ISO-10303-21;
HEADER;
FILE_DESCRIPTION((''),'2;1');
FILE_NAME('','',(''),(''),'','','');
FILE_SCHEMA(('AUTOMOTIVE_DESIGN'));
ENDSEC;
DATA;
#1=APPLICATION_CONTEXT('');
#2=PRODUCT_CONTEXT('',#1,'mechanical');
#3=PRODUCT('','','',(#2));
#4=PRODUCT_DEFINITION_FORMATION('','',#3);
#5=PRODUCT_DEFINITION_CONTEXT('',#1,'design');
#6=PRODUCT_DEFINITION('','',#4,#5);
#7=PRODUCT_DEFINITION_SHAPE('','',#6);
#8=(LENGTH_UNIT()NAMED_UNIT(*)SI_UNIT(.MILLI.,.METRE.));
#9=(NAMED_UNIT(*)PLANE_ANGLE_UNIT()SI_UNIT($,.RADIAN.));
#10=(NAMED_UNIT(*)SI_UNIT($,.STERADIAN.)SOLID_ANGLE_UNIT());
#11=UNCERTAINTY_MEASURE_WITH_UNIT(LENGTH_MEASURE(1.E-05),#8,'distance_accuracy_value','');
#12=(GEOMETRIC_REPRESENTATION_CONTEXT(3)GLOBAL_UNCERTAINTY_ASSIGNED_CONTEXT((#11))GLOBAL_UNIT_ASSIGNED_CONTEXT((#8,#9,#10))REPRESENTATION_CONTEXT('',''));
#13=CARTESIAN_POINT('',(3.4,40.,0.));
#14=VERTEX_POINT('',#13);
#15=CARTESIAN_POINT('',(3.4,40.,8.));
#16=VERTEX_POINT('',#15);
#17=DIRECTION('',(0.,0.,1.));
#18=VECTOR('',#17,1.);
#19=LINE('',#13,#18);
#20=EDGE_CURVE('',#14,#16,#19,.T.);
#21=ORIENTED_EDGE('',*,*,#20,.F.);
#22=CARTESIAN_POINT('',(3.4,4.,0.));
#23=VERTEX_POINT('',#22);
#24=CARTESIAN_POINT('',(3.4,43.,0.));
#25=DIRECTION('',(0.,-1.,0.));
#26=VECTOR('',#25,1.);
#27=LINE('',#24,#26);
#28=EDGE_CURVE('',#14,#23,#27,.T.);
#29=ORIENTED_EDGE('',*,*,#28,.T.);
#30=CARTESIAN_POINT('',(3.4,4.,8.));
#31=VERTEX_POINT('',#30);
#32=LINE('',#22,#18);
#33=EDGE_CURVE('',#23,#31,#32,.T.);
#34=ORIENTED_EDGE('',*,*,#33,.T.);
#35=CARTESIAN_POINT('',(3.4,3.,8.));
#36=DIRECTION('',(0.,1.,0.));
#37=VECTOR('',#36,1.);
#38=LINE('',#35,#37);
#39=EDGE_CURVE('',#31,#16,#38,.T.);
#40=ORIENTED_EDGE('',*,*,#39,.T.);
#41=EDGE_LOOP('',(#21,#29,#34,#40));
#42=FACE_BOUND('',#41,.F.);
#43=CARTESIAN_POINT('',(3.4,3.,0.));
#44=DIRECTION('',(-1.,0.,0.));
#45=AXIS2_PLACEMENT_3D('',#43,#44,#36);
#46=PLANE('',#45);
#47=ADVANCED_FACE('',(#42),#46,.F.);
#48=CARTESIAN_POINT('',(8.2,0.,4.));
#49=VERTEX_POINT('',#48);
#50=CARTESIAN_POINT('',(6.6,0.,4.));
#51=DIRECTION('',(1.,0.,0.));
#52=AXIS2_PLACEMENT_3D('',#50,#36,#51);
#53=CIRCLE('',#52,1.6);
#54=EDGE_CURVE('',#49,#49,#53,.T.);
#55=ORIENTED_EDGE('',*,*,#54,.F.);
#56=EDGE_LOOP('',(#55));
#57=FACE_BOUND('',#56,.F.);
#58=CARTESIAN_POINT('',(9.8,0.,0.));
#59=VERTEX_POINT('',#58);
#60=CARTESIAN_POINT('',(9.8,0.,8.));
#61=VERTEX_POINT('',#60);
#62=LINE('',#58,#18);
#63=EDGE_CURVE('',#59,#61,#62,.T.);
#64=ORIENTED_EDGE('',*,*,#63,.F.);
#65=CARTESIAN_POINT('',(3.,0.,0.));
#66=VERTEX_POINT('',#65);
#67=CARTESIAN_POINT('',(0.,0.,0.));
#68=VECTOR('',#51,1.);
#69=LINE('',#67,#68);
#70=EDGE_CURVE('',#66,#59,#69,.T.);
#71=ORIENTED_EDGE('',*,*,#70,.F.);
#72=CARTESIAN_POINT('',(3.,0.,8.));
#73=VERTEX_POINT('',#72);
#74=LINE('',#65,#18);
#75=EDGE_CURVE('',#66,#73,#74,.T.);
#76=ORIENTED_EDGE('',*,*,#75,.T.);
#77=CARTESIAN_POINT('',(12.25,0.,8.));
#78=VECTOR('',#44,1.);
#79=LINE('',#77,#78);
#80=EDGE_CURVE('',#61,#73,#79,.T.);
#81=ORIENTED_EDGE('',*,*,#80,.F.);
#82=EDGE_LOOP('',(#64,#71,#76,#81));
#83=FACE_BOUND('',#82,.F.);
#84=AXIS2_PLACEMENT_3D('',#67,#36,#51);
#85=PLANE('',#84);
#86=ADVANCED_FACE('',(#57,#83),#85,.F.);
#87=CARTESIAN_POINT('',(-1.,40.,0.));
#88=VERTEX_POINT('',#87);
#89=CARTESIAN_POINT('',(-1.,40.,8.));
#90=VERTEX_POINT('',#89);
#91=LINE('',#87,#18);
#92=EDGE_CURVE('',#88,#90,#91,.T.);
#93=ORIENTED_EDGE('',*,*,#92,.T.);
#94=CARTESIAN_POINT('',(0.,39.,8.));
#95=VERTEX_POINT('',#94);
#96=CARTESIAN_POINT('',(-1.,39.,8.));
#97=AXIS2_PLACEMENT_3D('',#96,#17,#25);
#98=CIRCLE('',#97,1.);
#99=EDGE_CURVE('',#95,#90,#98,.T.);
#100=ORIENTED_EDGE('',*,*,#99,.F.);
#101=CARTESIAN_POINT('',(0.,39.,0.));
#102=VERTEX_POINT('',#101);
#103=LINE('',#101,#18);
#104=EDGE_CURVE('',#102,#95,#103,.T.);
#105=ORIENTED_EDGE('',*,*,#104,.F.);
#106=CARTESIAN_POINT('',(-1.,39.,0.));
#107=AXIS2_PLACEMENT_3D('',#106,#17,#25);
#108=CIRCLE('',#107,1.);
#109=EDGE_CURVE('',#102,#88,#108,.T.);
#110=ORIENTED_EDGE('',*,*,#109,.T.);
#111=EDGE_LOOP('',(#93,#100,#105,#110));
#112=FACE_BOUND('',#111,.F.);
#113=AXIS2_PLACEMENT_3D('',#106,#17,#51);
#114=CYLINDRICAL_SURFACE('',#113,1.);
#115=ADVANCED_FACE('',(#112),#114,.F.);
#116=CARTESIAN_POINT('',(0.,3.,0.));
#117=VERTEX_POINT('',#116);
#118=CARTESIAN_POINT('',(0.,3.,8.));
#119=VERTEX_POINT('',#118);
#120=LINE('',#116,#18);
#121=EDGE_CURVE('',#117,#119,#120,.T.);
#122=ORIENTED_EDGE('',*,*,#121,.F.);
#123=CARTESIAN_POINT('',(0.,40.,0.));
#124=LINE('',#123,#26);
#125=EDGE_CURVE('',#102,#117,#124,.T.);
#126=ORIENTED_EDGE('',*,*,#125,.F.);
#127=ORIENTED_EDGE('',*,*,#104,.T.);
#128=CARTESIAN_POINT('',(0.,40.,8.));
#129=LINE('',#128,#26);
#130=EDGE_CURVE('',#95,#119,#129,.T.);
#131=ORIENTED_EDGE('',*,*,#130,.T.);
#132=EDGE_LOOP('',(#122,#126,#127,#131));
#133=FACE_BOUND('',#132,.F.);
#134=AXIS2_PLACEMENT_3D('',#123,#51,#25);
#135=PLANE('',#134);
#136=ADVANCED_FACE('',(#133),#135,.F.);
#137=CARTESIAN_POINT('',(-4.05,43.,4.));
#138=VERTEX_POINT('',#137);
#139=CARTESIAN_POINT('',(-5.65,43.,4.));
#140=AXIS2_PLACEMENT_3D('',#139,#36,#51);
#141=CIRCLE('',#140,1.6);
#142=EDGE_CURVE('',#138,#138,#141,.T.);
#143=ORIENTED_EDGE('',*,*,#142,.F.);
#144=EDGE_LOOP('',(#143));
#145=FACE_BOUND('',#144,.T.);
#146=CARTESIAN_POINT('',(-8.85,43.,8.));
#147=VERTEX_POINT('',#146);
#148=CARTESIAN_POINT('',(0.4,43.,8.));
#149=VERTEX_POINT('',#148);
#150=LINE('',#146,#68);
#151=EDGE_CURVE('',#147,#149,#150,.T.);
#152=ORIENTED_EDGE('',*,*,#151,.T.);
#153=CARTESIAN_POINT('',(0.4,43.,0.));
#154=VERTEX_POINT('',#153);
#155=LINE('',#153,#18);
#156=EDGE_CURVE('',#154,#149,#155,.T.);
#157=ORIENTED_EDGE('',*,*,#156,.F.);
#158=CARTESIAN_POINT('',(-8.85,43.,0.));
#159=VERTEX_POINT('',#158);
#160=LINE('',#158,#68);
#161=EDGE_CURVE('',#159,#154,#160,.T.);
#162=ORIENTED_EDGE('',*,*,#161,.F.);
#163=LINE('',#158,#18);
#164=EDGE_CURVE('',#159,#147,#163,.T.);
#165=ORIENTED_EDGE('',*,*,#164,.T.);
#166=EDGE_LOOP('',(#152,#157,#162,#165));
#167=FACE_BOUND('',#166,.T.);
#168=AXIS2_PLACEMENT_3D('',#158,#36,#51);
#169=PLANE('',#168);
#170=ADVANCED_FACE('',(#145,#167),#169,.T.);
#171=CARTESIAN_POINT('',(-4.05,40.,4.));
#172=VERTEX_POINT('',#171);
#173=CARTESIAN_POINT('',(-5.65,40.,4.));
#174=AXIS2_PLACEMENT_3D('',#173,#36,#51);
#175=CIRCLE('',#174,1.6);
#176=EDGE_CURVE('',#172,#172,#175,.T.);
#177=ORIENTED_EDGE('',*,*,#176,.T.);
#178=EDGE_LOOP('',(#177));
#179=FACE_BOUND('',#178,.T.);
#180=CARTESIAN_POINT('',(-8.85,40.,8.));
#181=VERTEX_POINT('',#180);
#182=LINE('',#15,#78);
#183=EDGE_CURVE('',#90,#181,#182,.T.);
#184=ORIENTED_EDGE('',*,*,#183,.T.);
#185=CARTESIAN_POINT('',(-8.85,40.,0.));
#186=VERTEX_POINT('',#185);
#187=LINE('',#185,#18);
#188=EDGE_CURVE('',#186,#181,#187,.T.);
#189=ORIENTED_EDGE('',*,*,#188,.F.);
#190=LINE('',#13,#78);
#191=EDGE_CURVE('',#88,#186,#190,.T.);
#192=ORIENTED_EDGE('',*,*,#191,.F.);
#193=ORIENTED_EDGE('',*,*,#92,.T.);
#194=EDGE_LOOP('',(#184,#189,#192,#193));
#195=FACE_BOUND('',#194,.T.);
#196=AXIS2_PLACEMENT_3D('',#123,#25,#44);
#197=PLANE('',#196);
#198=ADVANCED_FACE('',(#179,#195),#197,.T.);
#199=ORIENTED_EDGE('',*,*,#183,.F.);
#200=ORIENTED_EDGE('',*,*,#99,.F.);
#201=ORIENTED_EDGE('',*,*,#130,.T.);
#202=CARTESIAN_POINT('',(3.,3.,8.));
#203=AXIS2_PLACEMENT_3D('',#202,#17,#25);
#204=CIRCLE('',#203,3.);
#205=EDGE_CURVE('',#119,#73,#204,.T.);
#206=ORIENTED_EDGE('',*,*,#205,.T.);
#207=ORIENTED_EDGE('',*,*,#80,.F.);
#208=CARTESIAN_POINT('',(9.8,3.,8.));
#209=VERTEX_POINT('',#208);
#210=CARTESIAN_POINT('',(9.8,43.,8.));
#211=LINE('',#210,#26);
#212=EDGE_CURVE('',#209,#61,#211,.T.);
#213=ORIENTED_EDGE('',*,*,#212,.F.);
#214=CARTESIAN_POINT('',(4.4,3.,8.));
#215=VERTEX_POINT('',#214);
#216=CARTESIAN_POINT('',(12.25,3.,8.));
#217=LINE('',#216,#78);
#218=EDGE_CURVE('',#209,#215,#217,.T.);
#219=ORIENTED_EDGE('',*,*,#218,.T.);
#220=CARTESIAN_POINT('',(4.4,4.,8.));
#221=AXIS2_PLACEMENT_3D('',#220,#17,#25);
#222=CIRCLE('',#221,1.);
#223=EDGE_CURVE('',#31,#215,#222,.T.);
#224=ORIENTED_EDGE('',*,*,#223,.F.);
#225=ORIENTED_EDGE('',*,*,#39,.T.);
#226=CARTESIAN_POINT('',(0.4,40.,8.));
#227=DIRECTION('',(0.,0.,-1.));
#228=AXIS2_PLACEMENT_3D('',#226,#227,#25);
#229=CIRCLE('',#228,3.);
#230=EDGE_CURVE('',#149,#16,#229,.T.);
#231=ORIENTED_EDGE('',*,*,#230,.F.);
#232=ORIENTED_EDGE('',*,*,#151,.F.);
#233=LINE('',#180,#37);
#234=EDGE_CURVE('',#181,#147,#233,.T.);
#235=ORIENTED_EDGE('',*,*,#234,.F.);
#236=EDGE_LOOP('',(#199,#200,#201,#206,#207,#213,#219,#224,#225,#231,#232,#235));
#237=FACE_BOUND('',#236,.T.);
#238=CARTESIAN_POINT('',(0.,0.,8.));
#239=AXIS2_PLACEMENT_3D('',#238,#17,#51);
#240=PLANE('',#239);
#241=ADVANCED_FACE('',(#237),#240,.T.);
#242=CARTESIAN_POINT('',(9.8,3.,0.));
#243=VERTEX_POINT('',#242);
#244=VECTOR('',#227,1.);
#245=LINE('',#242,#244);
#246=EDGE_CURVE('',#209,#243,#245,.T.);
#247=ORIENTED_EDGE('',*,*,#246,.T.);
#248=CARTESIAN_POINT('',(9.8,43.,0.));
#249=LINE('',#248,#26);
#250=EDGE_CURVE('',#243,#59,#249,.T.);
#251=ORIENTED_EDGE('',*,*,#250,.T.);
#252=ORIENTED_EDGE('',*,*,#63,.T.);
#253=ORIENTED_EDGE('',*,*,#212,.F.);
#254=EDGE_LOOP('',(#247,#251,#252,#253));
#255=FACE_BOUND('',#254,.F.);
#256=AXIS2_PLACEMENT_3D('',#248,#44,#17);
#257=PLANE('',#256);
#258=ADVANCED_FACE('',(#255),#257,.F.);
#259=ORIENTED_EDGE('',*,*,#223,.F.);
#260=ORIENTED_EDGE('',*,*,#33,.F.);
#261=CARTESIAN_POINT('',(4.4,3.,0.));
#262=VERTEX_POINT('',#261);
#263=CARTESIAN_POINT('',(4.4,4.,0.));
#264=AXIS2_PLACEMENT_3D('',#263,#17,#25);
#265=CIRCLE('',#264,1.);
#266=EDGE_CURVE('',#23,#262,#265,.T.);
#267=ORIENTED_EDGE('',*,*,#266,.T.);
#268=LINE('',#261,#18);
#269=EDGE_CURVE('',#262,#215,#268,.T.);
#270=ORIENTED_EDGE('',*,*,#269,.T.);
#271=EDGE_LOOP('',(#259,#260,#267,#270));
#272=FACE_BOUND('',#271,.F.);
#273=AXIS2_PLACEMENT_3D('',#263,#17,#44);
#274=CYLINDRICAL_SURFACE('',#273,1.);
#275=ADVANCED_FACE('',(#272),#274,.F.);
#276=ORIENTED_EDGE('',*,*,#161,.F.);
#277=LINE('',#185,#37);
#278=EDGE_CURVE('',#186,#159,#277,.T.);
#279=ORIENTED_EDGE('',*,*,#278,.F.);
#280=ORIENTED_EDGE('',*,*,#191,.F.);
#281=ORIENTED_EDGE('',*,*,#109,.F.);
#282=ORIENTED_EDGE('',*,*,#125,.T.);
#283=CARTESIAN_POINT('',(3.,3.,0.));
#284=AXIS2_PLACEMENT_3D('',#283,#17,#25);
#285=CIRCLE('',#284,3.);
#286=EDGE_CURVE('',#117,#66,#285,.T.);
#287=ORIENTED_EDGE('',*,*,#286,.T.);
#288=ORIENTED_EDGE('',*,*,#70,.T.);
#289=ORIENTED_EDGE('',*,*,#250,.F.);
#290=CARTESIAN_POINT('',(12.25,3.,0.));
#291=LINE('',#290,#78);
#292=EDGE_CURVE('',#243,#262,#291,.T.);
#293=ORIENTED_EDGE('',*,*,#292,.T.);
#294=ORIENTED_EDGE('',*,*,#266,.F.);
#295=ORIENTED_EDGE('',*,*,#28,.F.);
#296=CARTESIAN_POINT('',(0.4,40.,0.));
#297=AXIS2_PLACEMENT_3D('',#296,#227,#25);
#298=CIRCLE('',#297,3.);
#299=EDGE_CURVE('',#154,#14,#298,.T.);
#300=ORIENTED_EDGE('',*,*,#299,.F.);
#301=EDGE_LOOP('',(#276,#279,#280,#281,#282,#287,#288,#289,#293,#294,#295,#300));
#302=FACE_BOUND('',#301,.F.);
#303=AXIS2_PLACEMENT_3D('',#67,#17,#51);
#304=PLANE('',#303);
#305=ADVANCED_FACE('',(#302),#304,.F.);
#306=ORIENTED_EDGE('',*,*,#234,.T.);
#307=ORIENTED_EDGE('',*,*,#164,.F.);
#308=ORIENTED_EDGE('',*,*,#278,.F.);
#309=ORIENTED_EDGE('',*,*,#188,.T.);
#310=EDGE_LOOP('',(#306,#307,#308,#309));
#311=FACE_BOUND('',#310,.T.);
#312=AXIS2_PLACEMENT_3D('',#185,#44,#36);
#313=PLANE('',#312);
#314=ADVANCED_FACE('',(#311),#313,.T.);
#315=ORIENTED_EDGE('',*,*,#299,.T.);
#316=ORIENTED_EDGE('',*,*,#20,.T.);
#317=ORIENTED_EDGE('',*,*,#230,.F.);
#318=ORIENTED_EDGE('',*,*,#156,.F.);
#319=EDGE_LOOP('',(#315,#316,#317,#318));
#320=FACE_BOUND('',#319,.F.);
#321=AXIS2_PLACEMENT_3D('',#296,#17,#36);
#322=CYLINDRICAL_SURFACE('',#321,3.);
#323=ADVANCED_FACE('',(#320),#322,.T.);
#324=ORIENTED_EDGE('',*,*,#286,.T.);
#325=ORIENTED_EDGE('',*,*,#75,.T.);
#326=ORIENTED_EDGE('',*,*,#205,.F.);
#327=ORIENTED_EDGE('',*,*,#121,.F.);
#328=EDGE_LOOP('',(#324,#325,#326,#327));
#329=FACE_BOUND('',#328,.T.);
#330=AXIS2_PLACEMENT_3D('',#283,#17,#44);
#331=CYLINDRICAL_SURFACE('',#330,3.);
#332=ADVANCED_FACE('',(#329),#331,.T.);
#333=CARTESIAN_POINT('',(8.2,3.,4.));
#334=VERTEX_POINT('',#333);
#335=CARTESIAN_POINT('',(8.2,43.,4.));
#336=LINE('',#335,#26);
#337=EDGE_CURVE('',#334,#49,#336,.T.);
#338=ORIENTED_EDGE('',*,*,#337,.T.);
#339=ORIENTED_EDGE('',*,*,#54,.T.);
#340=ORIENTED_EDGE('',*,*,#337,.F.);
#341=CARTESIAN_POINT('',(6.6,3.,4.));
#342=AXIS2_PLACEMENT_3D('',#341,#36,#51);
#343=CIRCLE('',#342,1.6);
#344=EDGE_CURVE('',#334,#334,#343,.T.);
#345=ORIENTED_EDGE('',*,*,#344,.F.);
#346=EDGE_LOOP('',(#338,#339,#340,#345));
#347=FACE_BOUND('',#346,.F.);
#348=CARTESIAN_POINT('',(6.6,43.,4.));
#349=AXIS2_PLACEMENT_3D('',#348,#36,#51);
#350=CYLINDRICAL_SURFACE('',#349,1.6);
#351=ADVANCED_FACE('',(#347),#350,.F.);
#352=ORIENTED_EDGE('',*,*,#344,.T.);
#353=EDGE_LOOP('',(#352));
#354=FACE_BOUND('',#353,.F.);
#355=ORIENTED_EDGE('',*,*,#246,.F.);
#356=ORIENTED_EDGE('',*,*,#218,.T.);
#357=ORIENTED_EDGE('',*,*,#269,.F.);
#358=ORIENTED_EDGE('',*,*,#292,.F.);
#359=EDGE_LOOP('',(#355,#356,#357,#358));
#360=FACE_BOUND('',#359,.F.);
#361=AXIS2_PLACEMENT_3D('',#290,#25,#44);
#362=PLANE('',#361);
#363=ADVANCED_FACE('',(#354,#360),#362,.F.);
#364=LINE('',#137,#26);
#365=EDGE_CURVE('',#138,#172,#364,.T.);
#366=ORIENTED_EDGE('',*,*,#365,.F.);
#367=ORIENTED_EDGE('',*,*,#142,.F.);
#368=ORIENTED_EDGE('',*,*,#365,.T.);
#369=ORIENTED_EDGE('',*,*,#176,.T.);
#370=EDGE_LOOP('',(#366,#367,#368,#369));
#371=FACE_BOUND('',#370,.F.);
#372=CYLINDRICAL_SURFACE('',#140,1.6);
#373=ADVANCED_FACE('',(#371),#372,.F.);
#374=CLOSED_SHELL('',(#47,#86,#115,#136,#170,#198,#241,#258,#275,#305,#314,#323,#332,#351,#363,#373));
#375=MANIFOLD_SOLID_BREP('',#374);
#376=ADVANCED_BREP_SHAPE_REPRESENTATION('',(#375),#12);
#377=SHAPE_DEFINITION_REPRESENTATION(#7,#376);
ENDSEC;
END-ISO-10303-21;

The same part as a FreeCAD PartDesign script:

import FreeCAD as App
import Part
import Sketcher

V = App.Vector


def edges_at(feature, points):
    """Names of the edges that pass closest to the given points."""
    edges = feature.Shape.Edges
    near = lambda p: min(range(len(edges)), key=lambda i: edges[i].distToShape(Part.Vertex(*p))[0])
    return sorted({f"Edge{near(p) + 1}" for p in points})


def add_polygon(sketch, points):
    """Adds a closed chain of lines whose ends are joined by coincident constraints."""
    first, n = sketch.GeometryCount, len(points)
    for a, b in zip(points, points[1:] + points[:1]):
        sketch.addGeometry(Part.LineSegment(App.Vector(*a, 0), App.Vector(*b, 0)), False)
    for i in range(n):
        sketch.addConstraint(Sketcher.Constraint("Coincident", first + i, 2, first + (i + 1) % n, 1))

doc = App.newDocument("Part")
body = doc.addObject("PartDesign::Body", "Body")

sketch1 = body.newObject("Sketcher::SketchObject", "Sketch")
sketch1.AttachmentSupport = (doc.getObject("XY_Plane"), [""])
sketch1.MapMode = "FlatFace"
add_polygon(sketch1, [(0, 40), (0, 0), (12.2, 0), (12.2, 3), (3.4, 3), (3.4, 43), (-8.8, 43), (-8.8, 40)])
sketch1.addConstraint([
    Sketcher.Constraint("Vertical", 0),
    Sketcher.Constraint("Horizontal", 1),
    Sketcher.Constraint("Vertical", 2),
    Sketcher.Constraint("Horizontal", 3),
    Sketcher.Constraint("Vertical", 4),
    Sketcher.Constraint("Horizontal", 5),
    Sketcher.Constraint("Vertical", 6),
    Sketcher.Constraint("Horizontal", 7),
    Sketcher.Constraint("Coincident", 0, 2, -1, 1),
    Sketcher.Constraint("Equal", 1, 5),
    Sketcher.Constraint("Equal", 0, 4),
    Sketcher.Constraint("DistanceY", 0, 2, 0, 1, 40.0),
    Sketcher.Constraint("DistanceY", 2, 1, 2, 2, 3.0),
    Sketcher.Constraint("DistanceX", 1, 1, 1, 2, 12.25),
    Sketcher.Constraint("DistanceX", -1, 1, 3, 2, 3.4),
])
pad1 = body.newObject("PartDesign::Pad", "Pad")
pad1.Profile = sketch1
pad1.Length = 8

sketch2 = body.newObject("Sketcher::SketchObject", "Sketch001")
sketch2.AttachmentSupport = (doc.getObject("XZ_Plane"), [""])
sketch2.MapMode = "FlatFace"
sketch2.AttachmentOffset = App.Placement(V(0, 0, -43), App.Rotation())
add_polygon(sketch2, [(12.2, 0), (9.8, 0), (9.8, 8), (12.2, 8)])
sketch2.addGeometry(Part.Circle(V(-5.7, 4, 0), V(0, 0, 1), 1.6), False)
sketch2.addGeometry(Part.Circle(V(6.6, 4, 0), V(0, 0, 1), 1.6), False)
sketch2.addConstraint([
    Sketcher.Constraint("Horizontal", 0),
    Sketcher.Constraint("Vertical", 1),
    Sketcher.Constraint("Horizontal", 2),
    Sketcher.Constraint("Vertical", 3),
    Sketcher.Constraint("Equal", 4, 5),
    Sketcher.Constraint("PointOnObject", 0, 2, -1),
    Sketcher.Constraint("Horizontal", 4, 3, 5, 3),
    Sketcher.Constraint("Diameter", 4, 3.2),
    Sketcher.Constraint("DistanceX", 5, 3, 0, 2, 3.2),
    Sketcher.Constraint("DistanceY", 1, 1, 1, 2, 8.0),
    Sketcher.Constraint("DistanceY", -1, 1, 4, 3, 4.0),
    Sketcher.Constraint("DistanceX", 0, 2, 0, 1, 2.45),
    Sketcher.Constraint("DistanceX", -1, 1, 5, 3, 6.6),
    Sketcher.Constraint("DistanceX", 4, 3, 2, 2, 17.9),
])
pocket1 = body.newObject("PartDesign::Pocket", "Pocket")
pocket1.Profile = sketch2
pocket1.Length = 51.5
pocket1.Reversed = True
doc.recompute()

fillet = body.newObject("PartDesign::Fillet", "Fillet")
fillet.Base = (pocket1, edges_at(pocket1, [(3.4, 43, 4), (0, 0, 4)]))
fillet.Radius = 3
doc.recompute()

fillet2 = body.newObject("PartDesign::Fillet", "Fillet001")
fillet2.Base = (fillet, edges_at(fillet, [(3.4, 3, 4), (0, 40, 4)]))
fillet2.Radius = 1

doc.recompute()
